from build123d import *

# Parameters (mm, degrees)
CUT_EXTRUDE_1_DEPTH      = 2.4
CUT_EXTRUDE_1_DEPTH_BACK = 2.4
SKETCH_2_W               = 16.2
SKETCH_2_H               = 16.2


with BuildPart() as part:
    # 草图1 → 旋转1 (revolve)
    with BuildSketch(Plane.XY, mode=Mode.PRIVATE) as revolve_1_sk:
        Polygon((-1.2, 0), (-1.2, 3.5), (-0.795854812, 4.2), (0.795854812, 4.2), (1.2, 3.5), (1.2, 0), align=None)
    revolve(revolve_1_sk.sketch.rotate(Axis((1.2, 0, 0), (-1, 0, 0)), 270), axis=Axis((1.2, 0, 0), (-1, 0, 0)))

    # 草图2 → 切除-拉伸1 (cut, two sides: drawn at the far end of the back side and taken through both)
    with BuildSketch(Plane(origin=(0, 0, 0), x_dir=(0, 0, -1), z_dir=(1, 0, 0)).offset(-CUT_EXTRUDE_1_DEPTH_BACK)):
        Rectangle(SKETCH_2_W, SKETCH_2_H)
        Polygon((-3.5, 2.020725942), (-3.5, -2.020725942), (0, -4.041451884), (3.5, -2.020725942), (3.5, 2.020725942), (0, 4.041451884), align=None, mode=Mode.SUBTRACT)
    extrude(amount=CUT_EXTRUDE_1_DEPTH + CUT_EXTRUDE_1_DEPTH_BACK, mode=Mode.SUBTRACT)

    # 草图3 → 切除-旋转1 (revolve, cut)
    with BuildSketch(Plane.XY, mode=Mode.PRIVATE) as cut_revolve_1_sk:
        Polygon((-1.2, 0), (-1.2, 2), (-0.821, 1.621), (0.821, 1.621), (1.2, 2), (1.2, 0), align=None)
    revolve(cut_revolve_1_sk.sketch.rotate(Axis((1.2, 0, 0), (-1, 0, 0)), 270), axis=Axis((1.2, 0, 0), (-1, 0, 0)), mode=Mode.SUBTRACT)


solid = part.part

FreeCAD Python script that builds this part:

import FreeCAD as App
import Part
import Sketcher

V = App.Vector
Q = App.Units.Quantity


def add_polygon(sketch, points):
    """Adds a closed chain of lines whose ends are joined by coincident constraints."""
    first, n = sketch.GeometryCount, len(points)
    for a, b in zip(points, points[1:] + points[:1]):
        sketch.addGeometry(Part.LineSegment(App.Vector(*a, 0), App.Vector(*b, 0)), False)
    for i in range(n):
        sketch.addConstraint(Sketcher.Constraint("Coincident", first + i, 2, first + (i + 1) % n, 1))

doc = App.newDocument("Part")
body = doc.addObject("PartDesign::Body", "Body")

# Sketch on XY plane
sketch1 = body.newObject("Sketcher::SketchObject", "Sketch")
sketch1.AttachmentSupport = (doc.getObject("XY_Plane"), [""])
sketch1.MapMode = "FlatFace"
add_polygon(sketch1, [(-1.2, 3.5), (-1.2, 0), (1.2, 0), (1.2, 3.5), (0.8, 4.2), (-0.8, 4.2)])  # lines 0-5
sketch1.addConstraint(Sketcher.Constraint("Vertical", 0))
sketch1.addConstraint(Sketcher.Constraint("Horizontal", 1))
sketch1.addConstraint(Sketcher.Constraint("Vertical", 2))
sketch1.addConstraint(Sketcher.Constraint("Horizontal", 4))
sketch1.addConstraint(Sketcher.Constraint("Symmetric", 0, 2, 1, 2, -1, 1))
sketch1.addConstraint(Sketcher.Constraint("Horizontal", 2, 2, 5, 2))
sketch1.addConstraint(Sketcher.Constraint("Equal", 3, 5))
sketch1.addConstraint(Sketcher.Constraint("Angle", 3, Q("120 deg")))
sketch1.addConstraint(Sketcher.Constraint("DistanceX", 1, 1, 1, 2, Q("2.4 mm")))
sketch1.addConstraint(Sketcher.Constraint("DistanceY", 0, 2, 0, 1, Q("3.5 mm")))
sketch1.addConstraint(Sketcher.Constraint("DistanceY", -1, 1, 3, 2, Q("4.2 mm")))
revolution = body.newObject("PartDesign::Revolution", "Revolution")
revolution.Profile = sketch1
revolution.ReferenceAxis = (sketch1, ["H_Axis"])
revolution.Angle = 360

# Sketch on YZ plane
sketch2 = body.newObject("Sketcher::SketchObject", "Sketch001")
sketch2.AttachmentSupport = (doc.getObject("YZ_Plane"), [""])
sketch2.MapMode = "FlatFace"
add_polygon(sketch2, [(8.1, 8.1), (-8.1, 8.1), (-8.1, -8.1), (8.1, -8.1)])  # lines 0-3
add_polygon(sketch2, [(-2, 3.5), (2, 3.5), (4, 0), (2, -3.5), (-2, -3.5), (-4, 0)])  # lines 4-9
sketch2.addConstraint(Sketcher.Constraint("Horizontal", 0))
sketch2.addConstraint(Sketcher.Constraint("Vertical", 1))
sketch2.addConstraint(Sketcher.Constraint("Horizontal", 2))
sketch2.addConstraint(Sketcher.Constraint("Vertical", 3))
sketch2.addConstraint(Sketcher.Constraint("Horizontal", 4))
sketch2.addConstraint(Sketcher.Constraint("Horizontal", 7))
sketch2.addConstraint(Sketcher.Constraint("Symmetric", 0, 2, 2, 2, -1, 1))
sketch2.addConstraint(Sketcher.Constraint("Symmetric", 4, 2, 7, 2, -1, 1))
sketch2.addConstraint(Sketcher.Constraint("Symmetric", 5, 2, 8, 2, -1, 1))
sketch2.addConstraint(Sketcher.Constraint("PointOnObject", 5, 2, -1))
sketch2.addConstraint(Sketcher.Constraint("Parallel", 6, 9))
sketch2.addConstraint(Sketcher.Constraint("Vertical", 4, 2, 6, 2))
sketch2.addConstraint(Sketcher.Constraint("Equal", 2, 1))
sketch2.addConstraint(Sketcher.Constraint("Angle", 5, Q("-60 deg")))
sketch2.addConstraint(Sketcher.Constraint("DistanceX", 0, 2, 0, 1, Q("16.2 mm")))
sketch2.addConstraint(Sketcher.Constraint("DistanceY", 6, 2, 4, 2, Q("7 mm")))
sketch2.addConstraint(Sketcher.Constraint("DistanceX", 4, 1, 4, 2, Q("4.041452 mm")))
pocket1 = body.newObject("PartDesign::Pocket", "Pocket")
pocket1.Profile = sketch2
pocket1.Type = "ThroughAll"
pocket1.Midplane = True

# Sketch on XY plane
sketch3 = body.newObject("Sketcher::SketchObject", "Sketch002")
sketch3.AttachmentSupport = (doc.getObject("XY_Plane"), [""])
sketch3.MapMode = "FlatFace"
add_polygon(sketch3, [(-1.2, 2), (-1.2, 0), (1.2, 0), (1.2, 2), (0.8, 1.6), (-0.8, 1.6)])  # lines 0-5
sketch3.addConstraint(Sketcher.Constraint("Vertical", 0))
sketch3.addConstraint(Sketcher.Constraint("Horizontal", 1))
sketch3.addConstraint(Sketcher.Constraint("Vertical", 2))
sketch3.addConstraint(Sketcher.Constraint("Horizontal", 4))
sketch3.addConstraint(Sketcher.Constraint("Symmetric", 0, 2, 1, 2, -1, 1))
sketch3.addConstraint(Sketcher.Constraint("Perpendicular", 3, 5))
sketch3.addConstraint(Sketcher.Constraint("Horizontal", 2, 2, 5, 2))
sketch3.addConstraint(Sketcher.Constraint("Equal", 3, 5))
sketch3.addConstraint(Sketcher.Constraint("DistanceY", 0, 2, 0, 1, Q("2 mm")))
sketch3.addConstraint(Sketcher.Constraint("DistanceX", 1, 1, 1, 2, Q("2.4 mm")))
sketch3.addConstraint(Sketcher.Constraint("DistanceX", 4, 2, 4, 1, Q("1.642 mm")))
groove = body.newObject("PartDesign::Groove", "Groove")
groove.Profile = sketch3
groove.ReferenceAxis = (sketch3, ["H_Axis"])
groove.Angle = 360

doc.recompute()
